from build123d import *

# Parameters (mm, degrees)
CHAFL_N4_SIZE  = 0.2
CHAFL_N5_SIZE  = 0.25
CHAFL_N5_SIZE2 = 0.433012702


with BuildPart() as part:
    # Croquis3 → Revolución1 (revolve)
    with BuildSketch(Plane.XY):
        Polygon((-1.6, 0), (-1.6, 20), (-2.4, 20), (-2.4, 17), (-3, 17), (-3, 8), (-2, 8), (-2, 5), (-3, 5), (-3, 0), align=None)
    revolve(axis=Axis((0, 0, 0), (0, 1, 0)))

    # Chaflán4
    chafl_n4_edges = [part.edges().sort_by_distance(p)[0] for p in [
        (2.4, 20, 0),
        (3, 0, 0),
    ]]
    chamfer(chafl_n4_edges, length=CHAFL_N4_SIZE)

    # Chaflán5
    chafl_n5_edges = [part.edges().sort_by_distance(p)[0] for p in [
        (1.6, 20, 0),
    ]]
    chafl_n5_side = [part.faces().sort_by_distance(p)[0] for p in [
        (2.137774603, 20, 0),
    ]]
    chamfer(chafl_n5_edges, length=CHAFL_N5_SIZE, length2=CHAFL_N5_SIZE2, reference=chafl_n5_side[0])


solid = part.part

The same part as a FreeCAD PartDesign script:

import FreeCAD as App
import Part
import Sketcher


def edges_at(feature, points):
    """Names of the edges that pass closest to the given points."""
    edges = feature.Shape.Edges
    near = lambda p: min(range(len(edges)), key=lambda i: edges[i].distToShape(Part.Vertex(*p))[0])
    return sorted({f"Edge{near(p) + 1}" for p in points})

doc = App.newDocument("Part")
body = doc.addObject("PartDesign::Body", "Body")

sketch1 = body.newObject("Sketcher::SketchObject", "Sketch")
sketch1.AttachmentSupport = (doc.getObject("XY_Plane"), [""])
sketch1.MapMode = "FlatFace"
sketch1.addGeometry([
    Part.LineSegment(App.Vector(-1.6, 0, 0), App.Vector(-1.6, 20, 0)),
    Part.LineSegment(App.Vector(-1.6, 20, 0), App.Vector(-2.4, 20, 0)),
    Part.LineSegment(App.Vector(-2.4, 20, 0), App.Vector(-2.4, 17, 0)),
    Part.LineSegment(App.Vector(-2.4, 17, 0), App.Vector(-3, 17, 0)),
    Part.LineSegment(App.Vector(-3, 17, 0), App.Vector(-3, 8, 0)),
    Part.LineSegment(App.Vector(-3, 8, 0), App.Vector(-2, 8, 0)),
    Part.LineSegment(App.Vector(-2, 8, 0), App.Vector(-2, 5, 0)),
    Part.LineSegment(App.Vector(-2, 5, 0), App.Vector(-3, 5, 0)),
    Part.LineSegment(App.Vector(-3, 5, 0), App.Vector(-3, 0, 0)),
    Part.LineSegment(App.Vector(-3, 0, 0), App.Vector(-1.6, 0, 0)),
], False)
sketch1.addConstraint([
    Sketcher.Constraint("Coincident", 0, 2, 1, 1),
    Sketcher.Constraint("Coincident", 1, 2, 2, 1),
    Sketcher.Constraint("Coincident", 2, 2, 3, 1),
    Sketcher.Constraint("Coincident", 3, 2, 4, 1),
    Sketcher.Constraint("Coincident", 4, 2, 5, 1),
    Sketcher.Constraint("Coincident", 5, 2, 6, 1),
    Sketcher.Constraint("Coincident", 6, 2, 7, 1),
    Sketcher.Constraint("Coincident", 7, 2, 8, 1),
    Sketcher.Constraint("Coincident", 8, 2, 9, 1),
    Sketcher.Constraint("Coincident", 9, 2, 0, 1),
    Sketcher.Constraint("Vertical", 0),
    Sketcher.Constraint("Horizontal", 1),
    Sketcher.Constraint("Vertical", 2),
    Sketcher.Constraint("Horizontal", 3),
    Sketcher.Constraint("Vertical", 4),
    Sketcher.Constraint("Horizontal", 5),
    Sketcher.Constraint("Vertical", 6),
    Sketcher.Constraint("Horizontal", 7),
    Sketcher.Constraint("Vertical", 8),
    Sketcher.Constraint("Horizontal", 9),
    Sketcher.Constraint("PointOnObject", 8, 2, -1),
    Sketcher.Constraint("Vertical", 4, 2, 7, 2),
    Sketcher.Constraint("Equal", 2, 6),
    Sketcher.Constraint("DistanceX", 5, 1, 5, 2, 1.0),
    Sketcher.Constraint("DistanceY", 0, 1, 0, 2, 20.0),
    Sketcher.Constraint("DistanceY", 2, 2, 2, 1, 3.0),
    Sketcher.Constraint("DistanceY", 4, 2, 4, 1, 9.0),
    Sketcher.Constraint("DistanceX", 1, 2, 1, 1, 0.8),
    Sketcher.Constraint("DistanceX", 3, 2, 3, 1, 0.6),
    Sketcher.Constraint("DistanceX", 3, 2, -1, 1, 3.0),
])
revolution = body.newObject("PartDesign::Revolution", "Revolution")
revolution.Profile = sketch1
revolution.ReferenceAxis = (sketch1, ["V_Axis"])
revolution.Angle = 360
doc.recompute()

chamfer = body.newObject("PartDesign::Chamfer", "Chamfer")
chamfer.Base = (revolution, edges_at(revolution, [(2.4, 20, 0), (3, 0, 0)]))
chamfer.Size = 0.2
doc.recompute()

chamfer2 = body.newObject("PartDesign::Chamfer", "Chamfer001")
chamfer2.Base = (chamfer, edges_at(chamfer, [(1.6, 20, 0)]))
chamfer2.ChamferType = "Two distances"
chamfer2.Size = 0.25
chamfer2.Size2 = 0.433013

doc.recompute()
